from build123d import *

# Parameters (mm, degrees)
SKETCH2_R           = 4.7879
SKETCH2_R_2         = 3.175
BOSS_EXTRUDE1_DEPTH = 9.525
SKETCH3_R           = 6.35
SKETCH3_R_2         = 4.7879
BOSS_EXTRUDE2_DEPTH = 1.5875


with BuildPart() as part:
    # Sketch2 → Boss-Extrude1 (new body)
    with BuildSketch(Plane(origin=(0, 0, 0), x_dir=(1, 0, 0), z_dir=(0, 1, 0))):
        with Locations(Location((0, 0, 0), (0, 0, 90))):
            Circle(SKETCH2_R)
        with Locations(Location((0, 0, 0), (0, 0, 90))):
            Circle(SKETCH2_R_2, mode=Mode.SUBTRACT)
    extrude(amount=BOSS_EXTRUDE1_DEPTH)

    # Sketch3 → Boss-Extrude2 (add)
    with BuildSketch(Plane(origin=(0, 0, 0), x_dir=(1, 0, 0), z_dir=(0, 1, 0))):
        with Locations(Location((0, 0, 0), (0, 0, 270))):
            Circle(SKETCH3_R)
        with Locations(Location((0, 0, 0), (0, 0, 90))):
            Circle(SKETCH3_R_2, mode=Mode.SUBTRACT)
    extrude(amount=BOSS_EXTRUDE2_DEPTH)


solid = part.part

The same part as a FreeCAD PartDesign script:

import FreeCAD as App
import Part
import Sketcher

V = App.Vector
Q = App.Units.Quantity

doc = App.newDocument("Part")
body = doc.addObject("PartDesign::Body", "Body")

# Sketch on XZ plane
sketch1 = body.newObject("Sketcher::SketchObject", "Sketch")
sketch1.AttachmentSupport = (doc.getObject("XZ_Plane"), [""])
sketch1.MapMode = "FlatFace"
sketch1.addGeometry(Part.Circle(V(0, 0, 0), V(0, 0, 1), 4.8), False)
sketch1.addGeometry(Part.Circle(V(0, 0, 0), V(0, 0, 1), 3.2), False)
sketch1.addConstraint(Sketcher.Constraint("Coincident", 0, 3, -1, 1))
sketch1.addConstraint(Sketcher.Constraint("Coincident", 1, 3, -1, 1))
sketch1.addConstraint(Sketcher.Constraint("Diameter", 1, Q("0.25 in")))
sketch1.addConstraint(Sketcher.Constraint("Diameter", 0, Q("0.377 in")))
pad1 = body.newObject("PartDesign::Pad", "Pad")
pad1.Profile = sketch1
pad1.Length = Q("0.375 in")
pad1.Reversed = True

# Sketch on XZ plane
sketch2 = body.newObject("Sketcher::SketchObject", "Sketch001")
sketch2.AttachmentSupport = (doc.getObject("XZ_Plane"), [""])
sketch2.MapMode = "FlatFace"
sketch2.addGeometry(Part.Circle(V(0, 0, 0), V(0, 0, 1), 6.3), False)
sketch2.addGeometry(Part.Circle(V(0, 0, 0), V(0, 0, 1), 4.8), False)
sketch2.addConstraint(Sketcher.Constraint("Coincident", 0, 3, -1, 1))
sketch2.addConstraint(Sketcher.Constraint("Coincident", 1, 3, -1, 1))
sketch2.addConstraint(Sketcher.Constraint("Diameter", 0, Q("0.5 in")))
sketch2.addConstraint(Sketcher.Constraint("Diameter", 1, Q("0.377 in")))
pad2 = body.newObject("PartDesign::Pad", "Pad001")
pad2.Profile = sketch2
pad2.Length = Q("0.0625 in")
pad2.Reversed = True

doc.recompute()
